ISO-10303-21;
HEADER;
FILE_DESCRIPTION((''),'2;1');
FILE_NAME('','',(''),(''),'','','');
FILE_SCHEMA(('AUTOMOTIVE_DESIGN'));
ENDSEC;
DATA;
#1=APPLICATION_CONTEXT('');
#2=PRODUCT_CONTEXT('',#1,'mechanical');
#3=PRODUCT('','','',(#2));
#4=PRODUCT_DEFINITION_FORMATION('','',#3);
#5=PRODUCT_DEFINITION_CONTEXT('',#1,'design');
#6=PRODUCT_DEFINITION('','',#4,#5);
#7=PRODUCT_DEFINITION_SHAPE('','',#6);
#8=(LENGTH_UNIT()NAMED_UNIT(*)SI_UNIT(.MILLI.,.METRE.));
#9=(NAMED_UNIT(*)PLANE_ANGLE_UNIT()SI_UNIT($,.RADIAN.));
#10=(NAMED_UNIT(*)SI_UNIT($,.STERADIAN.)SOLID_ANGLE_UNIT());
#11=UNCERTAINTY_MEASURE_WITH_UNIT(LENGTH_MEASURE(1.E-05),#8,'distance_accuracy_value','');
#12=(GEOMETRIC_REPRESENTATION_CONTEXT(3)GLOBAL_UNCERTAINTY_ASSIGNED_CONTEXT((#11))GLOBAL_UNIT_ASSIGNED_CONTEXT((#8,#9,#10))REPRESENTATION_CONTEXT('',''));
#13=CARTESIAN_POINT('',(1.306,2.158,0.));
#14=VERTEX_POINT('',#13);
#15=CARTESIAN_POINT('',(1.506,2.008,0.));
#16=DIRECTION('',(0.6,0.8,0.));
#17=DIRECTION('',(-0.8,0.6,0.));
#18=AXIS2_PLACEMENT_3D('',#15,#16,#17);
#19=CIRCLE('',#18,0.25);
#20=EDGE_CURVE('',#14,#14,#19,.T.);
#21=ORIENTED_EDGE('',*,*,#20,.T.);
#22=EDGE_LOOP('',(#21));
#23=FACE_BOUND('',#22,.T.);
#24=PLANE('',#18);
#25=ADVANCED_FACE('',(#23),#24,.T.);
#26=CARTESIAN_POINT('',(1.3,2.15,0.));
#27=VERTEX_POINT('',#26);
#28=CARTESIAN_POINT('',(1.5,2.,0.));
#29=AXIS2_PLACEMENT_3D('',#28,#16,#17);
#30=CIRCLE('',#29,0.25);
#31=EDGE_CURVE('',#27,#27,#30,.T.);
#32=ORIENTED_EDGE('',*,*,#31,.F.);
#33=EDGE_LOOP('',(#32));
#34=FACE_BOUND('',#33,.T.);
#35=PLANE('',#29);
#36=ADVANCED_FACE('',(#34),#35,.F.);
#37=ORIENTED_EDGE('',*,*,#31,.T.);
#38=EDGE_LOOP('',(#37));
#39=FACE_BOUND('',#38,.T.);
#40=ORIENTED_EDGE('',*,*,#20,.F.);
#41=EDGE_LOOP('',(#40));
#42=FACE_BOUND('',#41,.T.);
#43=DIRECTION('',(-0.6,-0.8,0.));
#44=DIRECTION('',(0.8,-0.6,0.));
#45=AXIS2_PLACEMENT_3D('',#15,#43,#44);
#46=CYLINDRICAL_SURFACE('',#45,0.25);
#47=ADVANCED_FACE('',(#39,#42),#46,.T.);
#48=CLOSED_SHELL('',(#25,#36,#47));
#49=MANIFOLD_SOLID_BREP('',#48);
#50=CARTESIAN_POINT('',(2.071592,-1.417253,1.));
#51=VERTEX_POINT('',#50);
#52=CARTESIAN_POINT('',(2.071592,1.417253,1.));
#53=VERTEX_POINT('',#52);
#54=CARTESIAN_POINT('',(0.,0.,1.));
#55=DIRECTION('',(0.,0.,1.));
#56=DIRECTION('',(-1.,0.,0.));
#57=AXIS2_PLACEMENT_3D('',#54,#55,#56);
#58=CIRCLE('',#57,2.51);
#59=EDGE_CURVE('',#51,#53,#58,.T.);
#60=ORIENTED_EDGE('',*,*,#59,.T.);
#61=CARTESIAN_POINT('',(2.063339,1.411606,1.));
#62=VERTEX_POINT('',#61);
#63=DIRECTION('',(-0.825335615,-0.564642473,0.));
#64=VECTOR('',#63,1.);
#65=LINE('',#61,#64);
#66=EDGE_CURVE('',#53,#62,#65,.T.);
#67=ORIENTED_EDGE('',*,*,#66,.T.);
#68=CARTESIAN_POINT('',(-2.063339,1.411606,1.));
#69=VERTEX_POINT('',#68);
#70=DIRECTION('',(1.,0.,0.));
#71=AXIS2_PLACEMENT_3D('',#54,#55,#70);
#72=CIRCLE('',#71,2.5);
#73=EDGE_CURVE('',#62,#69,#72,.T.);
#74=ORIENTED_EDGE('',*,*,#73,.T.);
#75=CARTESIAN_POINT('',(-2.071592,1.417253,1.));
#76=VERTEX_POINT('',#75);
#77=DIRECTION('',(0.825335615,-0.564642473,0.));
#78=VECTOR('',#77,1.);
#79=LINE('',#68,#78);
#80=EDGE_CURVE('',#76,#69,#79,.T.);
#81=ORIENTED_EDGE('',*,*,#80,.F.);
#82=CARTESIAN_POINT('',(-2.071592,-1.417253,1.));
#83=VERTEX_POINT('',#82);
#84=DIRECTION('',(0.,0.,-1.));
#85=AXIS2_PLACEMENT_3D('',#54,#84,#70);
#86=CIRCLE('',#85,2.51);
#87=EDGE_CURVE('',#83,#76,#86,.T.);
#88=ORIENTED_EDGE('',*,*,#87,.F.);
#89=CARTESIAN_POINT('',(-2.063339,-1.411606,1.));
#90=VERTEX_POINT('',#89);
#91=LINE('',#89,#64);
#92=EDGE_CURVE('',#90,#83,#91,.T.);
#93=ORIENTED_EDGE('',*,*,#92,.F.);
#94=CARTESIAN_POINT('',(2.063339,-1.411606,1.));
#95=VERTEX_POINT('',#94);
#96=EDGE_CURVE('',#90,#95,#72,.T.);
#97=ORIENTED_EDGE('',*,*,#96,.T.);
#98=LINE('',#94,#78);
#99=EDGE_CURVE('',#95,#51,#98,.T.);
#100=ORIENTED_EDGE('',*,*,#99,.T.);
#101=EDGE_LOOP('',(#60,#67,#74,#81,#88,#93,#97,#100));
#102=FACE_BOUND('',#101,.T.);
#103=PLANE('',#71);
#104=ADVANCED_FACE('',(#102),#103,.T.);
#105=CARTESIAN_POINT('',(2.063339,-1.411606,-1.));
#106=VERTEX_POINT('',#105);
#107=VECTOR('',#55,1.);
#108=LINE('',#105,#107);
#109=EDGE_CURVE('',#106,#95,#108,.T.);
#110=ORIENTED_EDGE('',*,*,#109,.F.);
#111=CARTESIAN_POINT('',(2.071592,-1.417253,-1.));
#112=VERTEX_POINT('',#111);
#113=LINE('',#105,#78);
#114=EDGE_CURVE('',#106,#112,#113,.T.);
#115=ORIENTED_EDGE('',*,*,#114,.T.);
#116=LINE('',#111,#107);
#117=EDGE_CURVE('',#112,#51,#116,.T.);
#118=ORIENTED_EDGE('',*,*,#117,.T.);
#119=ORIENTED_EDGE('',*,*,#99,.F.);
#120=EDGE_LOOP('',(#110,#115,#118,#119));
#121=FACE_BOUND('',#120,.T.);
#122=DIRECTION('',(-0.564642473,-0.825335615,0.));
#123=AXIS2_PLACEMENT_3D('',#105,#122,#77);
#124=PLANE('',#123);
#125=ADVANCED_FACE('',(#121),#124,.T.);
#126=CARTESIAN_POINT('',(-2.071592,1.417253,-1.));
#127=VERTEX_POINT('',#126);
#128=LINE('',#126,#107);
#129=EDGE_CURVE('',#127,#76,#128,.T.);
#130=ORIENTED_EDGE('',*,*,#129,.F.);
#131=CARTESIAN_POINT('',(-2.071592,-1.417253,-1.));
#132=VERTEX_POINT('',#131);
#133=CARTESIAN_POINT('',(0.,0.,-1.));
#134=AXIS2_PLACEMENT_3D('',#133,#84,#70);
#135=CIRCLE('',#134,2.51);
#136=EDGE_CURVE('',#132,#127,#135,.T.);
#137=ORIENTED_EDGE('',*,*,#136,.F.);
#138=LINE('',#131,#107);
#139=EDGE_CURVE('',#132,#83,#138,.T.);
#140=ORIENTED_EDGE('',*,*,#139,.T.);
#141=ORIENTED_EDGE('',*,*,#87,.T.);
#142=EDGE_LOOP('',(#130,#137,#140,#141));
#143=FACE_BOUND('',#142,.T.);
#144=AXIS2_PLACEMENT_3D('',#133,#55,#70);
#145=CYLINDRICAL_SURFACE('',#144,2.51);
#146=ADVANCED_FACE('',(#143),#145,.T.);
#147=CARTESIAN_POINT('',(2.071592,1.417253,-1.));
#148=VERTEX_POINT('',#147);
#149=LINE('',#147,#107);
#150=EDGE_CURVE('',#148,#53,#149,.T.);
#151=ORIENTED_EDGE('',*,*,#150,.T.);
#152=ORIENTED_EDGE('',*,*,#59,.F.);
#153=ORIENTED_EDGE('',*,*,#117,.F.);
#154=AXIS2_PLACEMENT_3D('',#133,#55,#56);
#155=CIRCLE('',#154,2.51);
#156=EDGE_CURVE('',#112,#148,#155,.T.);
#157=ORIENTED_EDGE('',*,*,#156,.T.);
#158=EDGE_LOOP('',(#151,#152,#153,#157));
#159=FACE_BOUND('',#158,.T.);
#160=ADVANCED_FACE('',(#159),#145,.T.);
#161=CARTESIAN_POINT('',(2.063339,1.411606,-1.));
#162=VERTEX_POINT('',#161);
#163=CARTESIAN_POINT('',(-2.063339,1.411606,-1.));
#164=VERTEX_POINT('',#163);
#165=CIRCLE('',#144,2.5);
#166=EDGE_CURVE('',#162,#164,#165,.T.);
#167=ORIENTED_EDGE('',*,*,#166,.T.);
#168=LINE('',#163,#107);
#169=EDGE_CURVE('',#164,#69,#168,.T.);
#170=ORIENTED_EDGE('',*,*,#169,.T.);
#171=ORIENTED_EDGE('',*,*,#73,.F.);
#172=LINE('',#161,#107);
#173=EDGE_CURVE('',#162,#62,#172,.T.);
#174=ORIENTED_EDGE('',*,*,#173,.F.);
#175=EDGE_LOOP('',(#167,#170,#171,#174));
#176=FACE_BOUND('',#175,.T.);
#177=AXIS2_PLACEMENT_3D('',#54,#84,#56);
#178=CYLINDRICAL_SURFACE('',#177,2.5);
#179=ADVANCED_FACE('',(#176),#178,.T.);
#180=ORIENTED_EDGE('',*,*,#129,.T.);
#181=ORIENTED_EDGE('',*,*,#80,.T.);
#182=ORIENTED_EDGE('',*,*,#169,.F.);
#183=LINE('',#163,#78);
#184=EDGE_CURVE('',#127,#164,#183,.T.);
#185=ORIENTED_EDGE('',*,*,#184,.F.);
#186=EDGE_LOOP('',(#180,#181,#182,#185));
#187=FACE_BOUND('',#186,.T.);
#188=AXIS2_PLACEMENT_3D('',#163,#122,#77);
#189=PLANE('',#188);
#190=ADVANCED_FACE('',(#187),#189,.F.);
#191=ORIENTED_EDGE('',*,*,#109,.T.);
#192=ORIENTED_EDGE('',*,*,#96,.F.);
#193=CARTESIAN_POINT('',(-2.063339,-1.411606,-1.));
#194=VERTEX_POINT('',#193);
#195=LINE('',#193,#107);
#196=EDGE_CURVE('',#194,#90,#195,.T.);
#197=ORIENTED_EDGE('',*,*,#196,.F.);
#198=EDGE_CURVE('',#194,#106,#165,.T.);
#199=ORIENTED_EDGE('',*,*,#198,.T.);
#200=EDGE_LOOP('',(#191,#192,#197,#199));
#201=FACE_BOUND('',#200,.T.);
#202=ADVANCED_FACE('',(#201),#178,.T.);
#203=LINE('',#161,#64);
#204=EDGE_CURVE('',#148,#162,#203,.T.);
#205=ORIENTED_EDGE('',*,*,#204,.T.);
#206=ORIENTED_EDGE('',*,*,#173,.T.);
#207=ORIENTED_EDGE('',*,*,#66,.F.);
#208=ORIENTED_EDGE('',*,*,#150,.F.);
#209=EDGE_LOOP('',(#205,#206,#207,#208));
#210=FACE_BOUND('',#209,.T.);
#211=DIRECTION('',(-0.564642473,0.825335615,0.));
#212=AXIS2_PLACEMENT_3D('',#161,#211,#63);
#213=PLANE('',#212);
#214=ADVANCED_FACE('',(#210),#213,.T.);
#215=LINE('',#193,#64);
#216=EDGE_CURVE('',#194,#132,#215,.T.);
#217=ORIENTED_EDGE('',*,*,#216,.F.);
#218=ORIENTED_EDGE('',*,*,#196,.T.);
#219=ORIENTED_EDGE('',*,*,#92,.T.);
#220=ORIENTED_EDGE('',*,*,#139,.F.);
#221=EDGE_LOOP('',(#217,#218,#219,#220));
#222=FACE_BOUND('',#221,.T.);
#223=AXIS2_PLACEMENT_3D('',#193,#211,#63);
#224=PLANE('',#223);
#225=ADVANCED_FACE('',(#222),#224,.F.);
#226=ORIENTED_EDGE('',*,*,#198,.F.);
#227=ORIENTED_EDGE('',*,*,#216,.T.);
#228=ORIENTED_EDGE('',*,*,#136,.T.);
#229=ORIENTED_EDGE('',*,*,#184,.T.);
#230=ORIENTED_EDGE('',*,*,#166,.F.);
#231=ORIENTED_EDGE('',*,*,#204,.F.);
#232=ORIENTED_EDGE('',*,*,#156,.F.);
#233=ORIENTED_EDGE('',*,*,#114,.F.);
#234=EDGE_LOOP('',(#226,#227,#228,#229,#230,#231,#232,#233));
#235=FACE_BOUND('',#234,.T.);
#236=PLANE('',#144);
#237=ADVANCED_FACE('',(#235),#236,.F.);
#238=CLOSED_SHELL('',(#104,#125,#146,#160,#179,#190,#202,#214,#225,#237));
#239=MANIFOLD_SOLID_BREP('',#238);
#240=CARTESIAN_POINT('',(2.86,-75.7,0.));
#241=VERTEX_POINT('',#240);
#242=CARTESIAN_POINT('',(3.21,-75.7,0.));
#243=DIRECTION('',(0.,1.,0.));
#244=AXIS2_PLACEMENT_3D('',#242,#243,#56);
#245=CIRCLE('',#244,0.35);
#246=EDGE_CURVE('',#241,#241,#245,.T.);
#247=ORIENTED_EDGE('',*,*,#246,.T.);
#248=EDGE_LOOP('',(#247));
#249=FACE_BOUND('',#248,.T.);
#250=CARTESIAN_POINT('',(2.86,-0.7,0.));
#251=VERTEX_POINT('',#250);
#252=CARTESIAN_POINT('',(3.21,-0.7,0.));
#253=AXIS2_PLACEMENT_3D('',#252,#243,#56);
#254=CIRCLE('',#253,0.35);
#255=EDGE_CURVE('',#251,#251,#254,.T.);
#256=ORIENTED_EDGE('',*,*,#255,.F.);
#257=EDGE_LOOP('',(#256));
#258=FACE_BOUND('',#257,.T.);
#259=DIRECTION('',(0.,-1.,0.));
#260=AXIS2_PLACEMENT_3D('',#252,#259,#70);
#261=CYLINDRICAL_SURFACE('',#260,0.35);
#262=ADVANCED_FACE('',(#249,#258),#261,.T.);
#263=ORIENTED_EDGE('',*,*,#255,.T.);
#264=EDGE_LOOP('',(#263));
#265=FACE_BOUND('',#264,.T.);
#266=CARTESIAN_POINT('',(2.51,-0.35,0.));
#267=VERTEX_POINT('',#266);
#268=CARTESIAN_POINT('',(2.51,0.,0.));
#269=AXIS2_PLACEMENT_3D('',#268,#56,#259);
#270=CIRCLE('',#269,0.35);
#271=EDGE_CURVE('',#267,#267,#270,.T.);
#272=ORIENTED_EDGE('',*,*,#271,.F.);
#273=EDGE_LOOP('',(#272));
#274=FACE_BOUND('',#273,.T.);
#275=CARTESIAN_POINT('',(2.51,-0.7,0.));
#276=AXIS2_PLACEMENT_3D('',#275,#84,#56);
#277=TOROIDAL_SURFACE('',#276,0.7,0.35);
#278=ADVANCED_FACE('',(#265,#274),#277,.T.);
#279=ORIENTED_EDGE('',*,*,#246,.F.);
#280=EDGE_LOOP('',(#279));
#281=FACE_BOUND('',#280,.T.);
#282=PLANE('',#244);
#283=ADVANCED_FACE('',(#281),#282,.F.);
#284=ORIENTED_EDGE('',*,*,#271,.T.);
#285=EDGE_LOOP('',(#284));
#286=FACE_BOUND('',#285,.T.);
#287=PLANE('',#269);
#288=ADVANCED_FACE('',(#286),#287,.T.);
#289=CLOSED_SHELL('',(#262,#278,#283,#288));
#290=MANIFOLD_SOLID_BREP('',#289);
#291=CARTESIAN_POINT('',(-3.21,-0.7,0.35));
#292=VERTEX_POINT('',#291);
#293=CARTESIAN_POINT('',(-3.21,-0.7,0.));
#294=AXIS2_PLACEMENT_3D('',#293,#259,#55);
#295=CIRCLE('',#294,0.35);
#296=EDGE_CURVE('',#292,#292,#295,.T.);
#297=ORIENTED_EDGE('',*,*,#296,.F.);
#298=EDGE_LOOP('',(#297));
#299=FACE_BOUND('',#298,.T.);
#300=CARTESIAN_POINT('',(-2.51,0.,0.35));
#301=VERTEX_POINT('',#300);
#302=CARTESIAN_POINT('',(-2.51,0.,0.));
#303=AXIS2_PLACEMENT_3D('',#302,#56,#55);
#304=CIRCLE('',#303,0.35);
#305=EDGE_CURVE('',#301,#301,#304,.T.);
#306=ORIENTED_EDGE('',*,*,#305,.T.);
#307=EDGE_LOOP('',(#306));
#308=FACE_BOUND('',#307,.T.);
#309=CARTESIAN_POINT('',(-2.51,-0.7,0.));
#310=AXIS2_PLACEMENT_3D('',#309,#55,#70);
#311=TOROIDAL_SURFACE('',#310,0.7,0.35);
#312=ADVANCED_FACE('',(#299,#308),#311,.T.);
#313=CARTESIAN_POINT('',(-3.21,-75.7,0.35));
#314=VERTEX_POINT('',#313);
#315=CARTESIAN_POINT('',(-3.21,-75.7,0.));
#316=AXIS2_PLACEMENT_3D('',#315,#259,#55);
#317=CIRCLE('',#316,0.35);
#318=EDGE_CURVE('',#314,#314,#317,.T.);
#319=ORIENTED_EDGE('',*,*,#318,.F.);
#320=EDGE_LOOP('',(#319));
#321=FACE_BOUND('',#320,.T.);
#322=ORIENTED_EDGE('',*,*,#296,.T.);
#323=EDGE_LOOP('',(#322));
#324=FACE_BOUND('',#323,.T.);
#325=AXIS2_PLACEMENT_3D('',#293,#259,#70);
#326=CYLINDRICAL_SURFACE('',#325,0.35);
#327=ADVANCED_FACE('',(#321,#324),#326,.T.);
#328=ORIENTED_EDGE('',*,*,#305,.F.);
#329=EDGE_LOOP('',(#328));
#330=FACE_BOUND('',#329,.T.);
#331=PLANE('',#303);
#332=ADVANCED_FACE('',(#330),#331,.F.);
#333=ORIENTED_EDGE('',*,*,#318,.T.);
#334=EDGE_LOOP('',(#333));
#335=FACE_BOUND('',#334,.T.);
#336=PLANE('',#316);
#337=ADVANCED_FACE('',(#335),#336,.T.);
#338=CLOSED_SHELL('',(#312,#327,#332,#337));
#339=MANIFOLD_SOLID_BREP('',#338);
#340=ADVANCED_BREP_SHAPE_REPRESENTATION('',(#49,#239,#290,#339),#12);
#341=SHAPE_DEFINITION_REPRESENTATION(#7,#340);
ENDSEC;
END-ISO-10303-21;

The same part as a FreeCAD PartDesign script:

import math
import FreeCAD as App
import Part
import Sketcher

V = App.Vector
Q = App.Units.Quantity

doc = App.newDocument("Part")
params = doc.addObject("Spreadsheet::Sheet", "Params")
for row, (alias, value) in enumerate([
    ("sketch1_diameter", "5 mm"),
    ("pad1_length", "2 mm"),
    ("sketch2_radius", "2.5 mm"),
    ("sketch2_radius2", "2.51 mm"),
    ("pad2_length", "2 mm"),
    ("sketch3_diameter", "0.5 mm"),
    ("pad3_length", "0.01 mm"),
    ("sketch4_diameter", "0.7 mm"),
    ("sketch5_radius", "0.7 mm"),
    ("sketch5_height", "75 mm"),
    ("sketch6_diameter", "0.7 mm"),
    ("sketch7_radius", "0.7 mm"),
    ("sketch7_height", "75 mm"),
], start=1):
    params.set(f"A{row}", alias)
    params.set(f"B{row}", "=" + value)
    params.setAlias(f"B{row}", alias)

body = doc.addObject("PartDesign::Body", "Body")

# Sketch on XY plane
sketch1 = doc.addObject("Sketcher::SketchObject", "Sketch")
body.addObject(sketch1)
sketch1.AttachmentSupport = (doc.XY_Plane, [""])
sketch1.MapMode = "FlatFace"
sketch1.addGeometry(Part.Circle(V(0, 0, 0), V(0, 0, 1), 2.5), False)
sketch1.addConstraint([
    Sketcher.Constraint("Coincident", 0, 3, -1, 1),
    Sketcher.Constraint("Diameter", 0, Q("5 mm")),
])
sketch1.setExpression("Constraints[1]", "Params.sketch1_diameter")
pad1 = doc.addObject("PartDesign::Pad", "Pad")
body.addObject(pad1)
pad1.Profile = sketch1
pad1.setExpression("Length", "Params.pad1_length")
pad1.Midplane = True

# Sketch on XY plane
sketch2 = doc.addObject("Sketcher::SketchObject", "Sketch001")
body.addObject(sketch2)
sketch2.AttachmentSupport = (doc.XY_Plane, [""])
sketch2.MapMode = "FlatFace"
sketch2.AttachmentOffset = App.Placement(V(0, 0, 1), App.Rotation())
sketch2.addGeometry([
    Part.LineSegment(V(2.072, 1.417, 0), V(2.063, 1.412, 0)),
    Part.ArcOfCircle(Part.Circle(V(0, 0, 0), V(0, 0, 1), 2.5), math.radians(-34), math.radians(34)),
    Part.LineSegment(V(2.063, -1.412, 0), V(2.072, -1.417, 0)),
    Part.ArcOfCircle(Part.Circle(V(0, 0, 0), V(0, 0, 1), 2.51), math.radians(-34), math.radians(34)),
], False)
sketch2.addConstraint([
    Sketcher.Constraint("Coincident", 0, 2, 1, 2),
    Sketcher.Constraint("Coincident", 1, 1, 2, 1),
    Sketcher.Constraint("Coincident", 2, 2, 3, 1),
    Sketcher.Constraint("Coincident", 3, 2, 0, 1),
    Sketcher.Constraint("Coincident", 1, 3, -1, 1),
    Sketcher.Constraint("Coincident", 3, 3, -1, 1),
    Sketcher.Constraint("Vertical", 0, 2, 1, 1),
    Sketcher.Constraint("Vertical", 2, 2, 3, 2),
    Sketcher.Constraint("Radius", 1, Q("2.5 mm")),
    Sketcher.Constraint("Radius", 3, Q("2.51 mm")),
    Sketcher.Constraint("DistanceX", -1, 1, 0, 2, Q("2.063339 mm")),
    Sketcher.Constraint("DistanceY", 2, 2, 0, 2, Q("2.828859 mm")),
])
sketch2.setExpression("Constraints[8]", "Params.sketch2_radius")
sketch2.setExpression("Constraints[9]", "Params.sketch2_radius2")
pad2 = doc.addObject("PartDesign::Pad", "Pad001")
body.addObject(pad2)
pad2.Profile = sketch2
pad2.setExpression("Length", "Params.pad2_length")
pad2.Reversed = True
doc.recompute()

mirrored = doc.addObject("PartDesign::Mirrored", "Mirrored")
body.addObject(mirrored)
mirrored.Originals = [pad2]
mirrored.MirrorPlane = (doc.YZ_Plane, [""])
body.Tip = mirrored
body2 = doc.addObject("PartDesign::Body", "Body001")

# Sketch on an angled plane
sketch3 = doc.addObject("Sketcher::SketchObject", "Sketch002")
body2.addObject(sketch3)
sketch3.Placement = App.Placement(V(1.5, 2, 0), App.Rotation(V(0.8, -0.6, 0), V(0, 0, -1), V(0.6, 0.8, 0), "ZXY"))
sketch3.addGeometry(Part.Circle(V(0, 0, 0), V(0, 0, 1), 0.25), False)
sketch3.addConstraint([
    Sketcher.Constraint("Coincident", 0, 3, -1, 1),
    Sketcher.Constraint("Diameter", 0, Q("0.5 mm")),
])
sketch3.setExpression("Constraints[1]", "Params.sketch3_diameter")
pad3 = doc.addObject("PartDesign::Pad", "Pad002")
body2.addObject(pad3)
pad3.Profile = sketch3
pad3.setExpression("Length", "Params.pad3_length")
body3 = doc.addObject("PartDesign::Body", "Body002")

# Sketch on XZ plane
sketch4 = doc.addObject("Sketcher::SketchObject", "Sketch003")
body3.addObject(sketch4)
sketch4.AttachmentSupport = (doc.getObject("XZ_Plane002"), [""])
sketch4.MapMode = "FlatFace"
sketch4.AttachmentOffset = App.Placement(V(0, 0, 75.7), App.Rotation())
sketch4.addGeometry(Part.Circle(V(3.21, 0, 0), V(0, 0, 1), 0.35), False)
sketch4.addConstraint([
    Sketcher.Constraint("PointOnObject", 0, 3, -1),
    Sketcher.Constraint("Diameter", 0, Q("0.7 mm")),
    Sketcher.Constraint("DistanceX", -1, 1, 0, 3, Q("3.21 mm")),
])
sketch4.setExpression("Constraints[1]", "Params.sketch4_diameter")

# Sketch on XY plane
sketch5 = doc.addObject("Sketcher::SketchObject", "Sketch004")
body3.addObject(sketch5)
sketch5.AttachmentSupport = (doc.getObject("XY_Plane002"), [""])
sketch5.MapMode = "FlatFace"
sketch5.addGeometry([
    Part.LineSegment(V(3.2, -75.7, 0), V(3.2, -0.7, 0)),
    Part.ArcOfCircle(Part.Circle(V(2.5, -0.7, 0), V(0, 0, 1), 0.7), math.radians(0), math.radians(90)),
], False)
sketch5.addConstraint([
    Sketcher.Constraint("Tangent", 0, 2, 1, 1),
    Sketcher.Constraint("Vertical", 0),
    Sketcher.Constraint("PointOnObject", 1, 2, -1),
    Sketcher.Constraint("Radius", 1, Q("0.7 mm")),
    Sketcher.Constraint("DistanceY", 0, 1, 0, 2, Q("75 mm")),
    Sketcher.Constraint("DistanceX", 1, 2, 0, 2, Q("0.7 mm")),
    Sketcher.Constraint("DistanceX", -1, 1, 1, 3, Q("2.51 mm")),
])
sketch5.setExpression("Constraints[3]", "Params.sketch5_radius")
sketch5.setExpression("Constraints[4]", "Params.sketch5_height")
doc.recompute()

additivepipe = doc.addObject("PartDesign::AdditivePipe", "AdditivePipe")
body3.addObject(additivepipe)
additivepipe.Profile = sketch4
additivepipe.Spine = (sketch5, ["Edge1", "Edge2"])
body4 = doc.addObject("PartDesign::Body", "Body003")

# Sketch on XZ plane
sketch6 = doc.addObject("Sketcher::SketchObject", "Sketch005")
body4.addObject(sketch6)
sketch6.AttachmentSupport = (doc.getObject("XZ_Plane003"), [""])
sketch6.MapMode = "FlatFace"
sketch6.AttachmentOffset = App.Placement(V(0, 0, 75.7), App.Rotation())
sketch6.addGeometry(Part.Circle(V(-3.21, 0, 0), V(0, 0, 1), 0.35), False)
sketch6.addConstraint([
    Sketcher.Constraint("PointOnObject", 0, 3, -1),
    Sketcher.Constraint("Diameter", 0, Q("0.7 mm")),
    Sketcher.Constraint("DistanceX", 0, 3, -1, 1, Q("3.21 mm")),
])
sketch6.setExpression("Constraints[1]", "Params.sketch6_diameter")

# Sketch on XY plane
sketch7 = doc.addObject("Sketcher::SketchObject", "Sketch006")
body4.addObject(sketch7)
sketch7.AttachmentSupport = (doc.getObject("XY_Plane003"), [""])
sketch7.MapMode = "FlatFace"
sketch7.addGeometry([
    Part.LineSegment(V(-3.2, -75.7, 0), V(-3.2, -0.7, 0)),
    Part.ArcOfCircle(Part.Circle(V(-2.5, -0.7, 0), V(0, 0, 1), 0.7), math.radians(90), math.radians(180)),
], False)
sketch7.addConstraint([
    Sketcher.Constraint("Tangent", 0, 2, 1, 2),
    Sketcher.Constraint("Vertical", 0),
    Sketcher.Constraint("PointOnObject", 1, 1, -1),
    Sketcher.Constraint("Radius", 1, Q("0.7 mm")),
    Sketcher.Constraint("DistanceY", 0, 1, 0, 2, Q("75 mm")),
    Sketcher.Constraint("DistanceX", 0, 2, 1, 1, Q("0.7 mm")),
    Sketcher.Constraint("DistanceX", 1, 3, -1, 1, Q("2.51 mm")),
])
sketch7.setExpression("Constraints[3]", "Params.sketch7_radius")
sketch7.setExpression("Constraints[4]", "Params.sketch7_height")
doc.recompute()

additivepipe2 = doc.addObject("PartDesign::AdditivePipe", "AdditivePipe001")
body4.addObject(additivepipe2)
additivepipe2.Profile = sketch6
additivepipe2.Spine = (sketch7, ["Edge1", "Edge2"])

doc.recompute()
